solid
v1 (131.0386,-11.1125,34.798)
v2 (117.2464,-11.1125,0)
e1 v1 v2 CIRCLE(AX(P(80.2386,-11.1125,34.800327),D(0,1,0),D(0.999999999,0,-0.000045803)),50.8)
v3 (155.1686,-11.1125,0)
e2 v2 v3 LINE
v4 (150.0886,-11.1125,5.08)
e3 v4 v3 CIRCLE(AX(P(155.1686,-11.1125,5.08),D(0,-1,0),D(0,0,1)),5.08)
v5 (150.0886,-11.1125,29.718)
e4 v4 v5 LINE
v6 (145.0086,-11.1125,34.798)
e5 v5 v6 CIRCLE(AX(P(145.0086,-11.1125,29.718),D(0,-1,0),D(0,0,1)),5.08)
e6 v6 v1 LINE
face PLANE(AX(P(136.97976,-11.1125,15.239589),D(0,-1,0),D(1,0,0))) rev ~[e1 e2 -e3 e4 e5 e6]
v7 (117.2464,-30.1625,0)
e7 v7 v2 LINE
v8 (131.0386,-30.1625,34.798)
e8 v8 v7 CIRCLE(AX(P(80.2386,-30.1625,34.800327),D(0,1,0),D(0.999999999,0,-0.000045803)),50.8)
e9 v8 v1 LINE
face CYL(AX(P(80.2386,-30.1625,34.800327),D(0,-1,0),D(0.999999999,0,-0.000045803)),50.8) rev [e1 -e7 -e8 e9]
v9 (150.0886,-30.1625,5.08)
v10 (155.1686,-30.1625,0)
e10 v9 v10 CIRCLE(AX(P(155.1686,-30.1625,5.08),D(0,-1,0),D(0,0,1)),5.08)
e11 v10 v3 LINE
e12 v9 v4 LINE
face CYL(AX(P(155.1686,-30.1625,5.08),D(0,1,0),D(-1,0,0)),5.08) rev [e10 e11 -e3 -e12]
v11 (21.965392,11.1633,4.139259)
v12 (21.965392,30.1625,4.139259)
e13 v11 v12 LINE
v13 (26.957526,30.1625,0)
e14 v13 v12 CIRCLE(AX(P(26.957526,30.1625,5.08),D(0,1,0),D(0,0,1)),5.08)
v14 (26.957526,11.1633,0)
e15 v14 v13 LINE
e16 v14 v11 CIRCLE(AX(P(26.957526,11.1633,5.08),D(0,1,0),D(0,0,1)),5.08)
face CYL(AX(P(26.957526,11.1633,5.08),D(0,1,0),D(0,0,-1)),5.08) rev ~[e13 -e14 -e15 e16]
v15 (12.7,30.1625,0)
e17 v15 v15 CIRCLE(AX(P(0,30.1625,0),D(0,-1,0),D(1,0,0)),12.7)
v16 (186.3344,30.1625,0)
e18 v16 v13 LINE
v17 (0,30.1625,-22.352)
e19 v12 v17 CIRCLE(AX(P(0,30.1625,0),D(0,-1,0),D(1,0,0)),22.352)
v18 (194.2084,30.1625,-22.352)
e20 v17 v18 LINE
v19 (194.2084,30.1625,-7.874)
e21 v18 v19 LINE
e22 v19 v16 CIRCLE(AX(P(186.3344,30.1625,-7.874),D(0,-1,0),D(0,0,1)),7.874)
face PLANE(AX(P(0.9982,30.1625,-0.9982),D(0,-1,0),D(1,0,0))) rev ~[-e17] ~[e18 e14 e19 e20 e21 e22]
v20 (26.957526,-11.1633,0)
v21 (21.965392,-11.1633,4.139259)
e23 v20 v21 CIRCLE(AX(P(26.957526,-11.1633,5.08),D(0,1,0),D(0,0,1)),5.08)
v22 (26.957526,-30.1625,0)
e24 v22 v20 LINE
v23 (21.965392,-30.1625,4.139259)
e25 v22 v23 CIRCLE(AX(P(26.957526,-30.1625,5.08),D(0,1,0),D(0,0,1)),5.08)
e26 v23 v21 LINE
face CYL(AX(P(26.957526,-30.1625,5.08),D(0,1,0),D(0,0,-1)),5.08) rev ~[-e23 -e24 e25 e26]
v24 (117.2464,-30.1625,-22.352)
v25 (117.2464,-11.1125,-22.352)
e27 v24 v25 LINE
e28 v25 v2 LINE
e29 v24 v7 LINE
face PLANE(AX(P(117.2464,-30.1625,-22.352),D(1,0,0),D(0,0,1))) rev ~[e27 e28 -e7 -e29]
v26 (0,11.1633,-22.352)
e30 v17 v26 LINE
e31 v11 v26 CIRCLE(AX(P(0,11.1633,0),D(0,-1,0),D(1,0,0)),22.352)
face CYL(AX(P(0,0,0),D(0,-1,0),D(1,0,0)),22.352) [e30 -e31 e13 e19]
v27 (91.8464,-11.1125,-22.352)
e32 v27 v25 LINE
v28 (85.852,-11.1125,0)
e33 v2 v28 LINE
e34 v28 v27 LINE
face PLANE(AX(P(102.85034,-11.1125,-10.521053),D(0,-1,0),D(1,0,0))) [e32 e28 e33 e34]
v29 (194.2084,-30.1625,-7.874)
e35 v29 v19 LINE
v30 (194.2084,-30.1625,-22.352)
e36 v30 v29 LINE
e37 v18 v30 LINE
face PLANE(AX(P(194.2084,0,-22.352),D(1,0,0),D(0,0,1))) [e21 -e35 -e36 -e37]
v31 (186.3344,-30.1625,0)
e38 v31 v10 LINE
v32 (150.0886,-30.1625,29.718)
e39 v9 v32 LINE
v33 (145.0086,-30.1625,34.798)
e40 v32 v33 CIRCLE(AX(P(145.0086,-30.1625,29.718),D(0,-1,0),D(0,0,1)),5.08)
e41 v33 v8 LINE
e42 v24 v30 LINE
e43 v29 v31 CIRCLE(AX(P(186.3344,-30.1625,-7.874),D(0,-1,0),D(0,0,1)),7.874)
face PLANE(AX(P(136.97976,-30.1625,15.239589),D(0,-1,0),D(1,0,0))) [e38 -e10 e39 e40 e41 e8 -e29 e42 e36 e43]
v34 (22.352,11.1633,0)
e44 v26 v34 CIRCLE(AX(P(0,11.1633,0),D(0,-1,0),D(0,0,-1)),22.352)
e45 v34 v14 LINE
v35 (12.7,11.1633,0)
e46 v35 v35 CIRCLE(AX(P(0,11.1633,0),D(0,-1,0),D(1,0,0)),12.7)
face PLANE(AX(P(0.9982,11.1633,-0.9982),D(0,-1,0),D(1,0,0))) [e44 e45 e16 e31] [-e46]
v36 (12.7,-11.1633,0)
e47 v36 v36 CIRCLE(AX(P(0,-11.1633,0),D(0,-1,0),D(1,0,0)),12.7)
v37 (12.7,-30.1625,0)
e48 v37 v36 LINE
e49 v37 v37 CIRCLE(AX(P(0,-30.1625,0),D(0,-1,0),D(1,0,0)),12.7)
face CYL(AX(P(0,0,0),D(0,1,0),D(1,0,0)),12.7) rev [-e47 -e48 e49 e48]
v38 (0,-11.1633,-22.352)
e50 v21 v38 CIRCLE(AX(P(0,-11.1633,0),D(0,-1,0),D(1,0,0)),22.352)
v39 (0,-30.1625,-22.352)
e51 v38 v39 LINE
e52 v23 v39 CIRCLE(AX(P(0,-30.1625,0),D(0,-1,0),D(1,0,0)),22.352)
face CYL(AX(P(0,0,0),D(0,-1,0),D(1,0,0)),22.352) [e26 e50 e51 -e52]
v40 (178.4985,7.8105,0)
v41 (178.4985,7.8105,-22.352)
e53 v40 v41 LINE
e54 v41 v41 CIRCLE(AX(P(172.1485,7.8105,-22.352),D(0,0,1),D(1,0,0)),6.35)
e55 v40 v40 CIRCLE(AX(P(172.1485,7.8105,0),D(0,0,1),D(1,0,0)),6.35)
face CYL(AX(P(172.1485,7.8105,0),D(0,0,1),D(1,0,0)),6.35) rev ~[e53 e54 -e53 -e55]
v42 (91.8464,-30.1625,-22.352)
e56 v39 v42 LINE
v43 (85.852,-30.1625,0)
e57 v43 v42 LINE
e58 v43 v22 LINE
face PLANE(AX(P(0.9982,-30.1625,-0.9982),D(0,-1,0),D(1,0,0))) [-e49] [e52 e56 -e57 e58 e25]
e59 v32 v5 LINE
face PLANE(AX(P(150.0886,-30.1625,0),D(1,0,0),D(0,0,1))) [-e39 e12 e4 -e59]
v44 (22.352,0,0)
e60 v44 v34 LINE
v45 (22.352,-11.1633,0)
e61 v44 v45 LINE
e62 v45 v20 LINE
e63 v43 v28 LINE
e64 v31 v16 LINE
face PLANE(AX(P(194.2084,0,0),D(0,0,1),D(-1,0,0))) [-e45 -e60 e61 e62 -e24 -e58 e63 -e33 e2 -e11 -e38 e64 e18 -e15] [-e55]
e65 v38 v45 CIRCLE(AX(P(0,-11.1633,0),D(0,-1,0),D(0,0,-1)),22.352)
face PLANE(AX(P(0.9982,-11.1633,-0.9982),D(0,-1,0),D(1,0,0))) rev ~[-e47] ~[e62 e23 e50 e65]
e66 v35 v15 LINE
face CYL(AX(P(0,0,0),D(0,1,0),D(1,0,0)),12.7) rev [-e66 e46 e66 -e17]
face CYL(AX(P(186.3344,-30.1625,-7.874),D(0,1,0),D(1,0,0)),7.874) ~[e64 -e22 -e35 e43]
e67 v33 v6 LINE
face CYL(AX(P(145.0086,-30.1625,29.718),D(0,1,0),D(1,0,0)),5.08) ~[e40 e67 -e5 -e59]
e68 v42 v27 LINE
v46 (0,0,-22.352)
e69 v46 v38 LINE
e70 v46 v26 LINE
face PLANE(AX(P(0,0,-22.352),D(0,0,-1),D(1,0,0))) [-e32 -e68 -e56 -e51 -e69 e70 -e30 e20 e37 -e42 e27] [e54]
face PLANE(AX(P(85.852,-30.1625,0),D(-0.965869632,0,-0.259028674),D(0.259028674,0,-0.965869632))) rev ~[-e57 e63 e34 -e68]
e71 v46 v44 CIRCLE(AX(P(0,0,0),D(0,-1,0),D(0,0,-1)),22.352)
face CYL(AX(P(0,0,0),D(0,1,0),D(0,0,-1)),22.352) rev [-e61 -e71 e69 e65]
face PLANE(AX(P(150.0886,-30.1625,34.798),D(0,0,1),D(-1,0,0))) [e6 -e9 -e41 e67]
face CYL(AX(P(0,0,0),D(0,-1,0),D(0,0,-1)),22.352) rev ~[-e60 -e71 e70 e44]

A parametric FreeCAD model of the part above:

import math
import FreeCAD as App
import Part
import Sketcher

V = App.Vector
Q = App.Units.Quantity


def edges_at(feature, points):
    """Names of the edges that pass closest to the given points."""
    edges = feature.Shape.Edges
    near = lambda p: min(range(len(edges)), key=lambda i: edges[i].distToShape(Part.Vertex(*p))[0])
    return sorted({f"Edge{near(p) + 1}" for p in points})

doc = App.newDocument("Part")
body = doc.addObject("PartDesign::Body", "Body")

sketch1 = body.newObject("Sketcher::SketchObject", "Sketch")
sketch1.AttachmentSupport = (doc.getObject("XZ_Plane"), [""])
sketch1.MapMode = "FlatFace"
sketch1.addGeometry([
    Part.ArcOfCircle(Part.Circle(V(0, 0, 0), V(0, 0, 1), 22), math.radians(0), math.radians(270)),
    Part.LineSegment(V(0, -22, 0), V(194, -22, 0)),
    Part.LineSegment(V(194, -22, 0), V(194, 0, 0)),
    Part.LineSegment(V(194, 0, 0), V(22, 0, 0)),
    Part.Circle(V(0, 0, 0), V(0, 0, 1), 13),
], False)
sketch1.addConstraint([
    Sketcher.Constraint("Tangent", 0, 2, 1, 1),
    Sketcher.Constraint("Coincident", 1, 2, 2, 1),
    Sketcher.Constraint("Coincident", 2, 2, 3, 1),
    Sketcher.Constraint("Coincident", 3, 2, 0, 1),
    Sketcher.Constraint("Horizontal", 1),
    Sketcher.Constraint("Vertical", 2),
    Sketcher.Constraint("Horizontal", 3),
    Sketcher.Constraint("Coincident", 0, 3, -1, 1),
    Sketcher.Constraint("Coincident", 4, 3, -1, 1),
    Sketcher.Constraint("PointOnObject", 2, 2, -1),
    Sketcher.Constraint("Diameter", 4, Q("1 in")),
    Sketcher.Constraint("Radius", 0, Q("0.88 in")),
    Sketcher.Constraint("DistanceX", 1, 1, 1, 2, Q("7.646 in")),
])
pad1 = body.newObject("PartDesign::Pad", "Pad")
pad1.Profile = sketch1
pad1.Length = Q("2.375 in")
pad1.Midplane = True

sketch2 = body.newObject("Sketcher::SketchObject", "Sketch001")
sketch2.AttachmentSupport = (doc.getObject("XZ_Plane"), [""])
sketch2.MapMode = "FlatFace"
sketch2.addGeometry([
    Part.ArcOfCircle(Part.Circle(V(0, 0, 0), V(0, 0, 1), 22), math.radians(-90), math.radians(0)),
    Part.ArcOfCircle(Part.Circle(V(0, 0, 0), V(0, 0, 1), 22), math.radians(0), math.radians(270)),
    Part.Circle(V(0, 0, 0), V(0, 0, 1), 13),
], False)
sketch2.addConstraint([
    Sketcher.Constraint("Tangent", 0, 1, 1, 2),
    Sketcher.Constraint("Coincident", 1, 1, 0, 2),
    Sketcher.Constraint("Coincident", 0, 3, -1, 1),
    Sketcher.Constraint("Coincident", 2, 3, -1, 1),
    Sketcher.Constraint("PointOnObject", 0, 1, -2),
    Sketcher.Constraint("PointOnObject", 1, 1, -1),
    Sketcher.Constraint("Diameter", 2, Q("1 in")),
    Sketcher.Constraint("Radius", 0, Q("0.88 in")),
])
pocket1 = body.newObject("PartDesign::Pocket", "Pocket")
pocket1.Profile = sketch2
pocket1.Length = Q("0.879 in")
pocket1.Midplane = True

sketch3 = body.newObject("Sketcher::SketchObject", "Sketch002")
sketch3.AttachmentSupport = (doc.getObject("XZ_Plane"), [""])
sketch3.MapMode = "FlatFace"
sketch3.AttachmentOffset = App.Placement(V(0, 0, 1.1875 * 25.4), App.Rotation())
sketch3.addGeometry([
    Part.LineSegment(V(117, 0, 0), V(86, 0, 0)),
    Part.LineSegment(V(86, 0, 0), V(92, -22, 0)),
    Part.LineSegment(V(92, -22, 0), V(117, -22, 0)),
    Part.LineSegment(V(117, -22, 0), V(117, 0, 0)),
], False)
sketch3.addConstraint([
    Sketcher.Constraint("Coincident", 0, 2, 1, 1),
    Sketcher.Constraint("Coincident", 1, 2, 2, 1),
    Sketcher.Constraint("Coincident", 2, 2, 3, 1),
    Sketcher.Constraint("Coincident", 3, 2, 0, 1),
    Sketcher.Constraint("Horizontal", 0),
    Sketcher.Constraint("Horizontal", 2),
    Sketcher.Constraint("Vertical", 3),
    Sketcher.Constraint("PointOnObject", 0, 2, -1),
    Sketcher.Constraint("DistanceX", 2, 1, 2, 2, Q("1 in")),
    Sketcher.Constraint("DistanceY", 3, 1, 3, 2, Q("0.88 in")),
    Sketcher.Constraint("DistanceX", 0, 2, 0, 1, Q("1.236 in")),
    Sketcher.Constraint("DistanceX", -1, 1, 0, 2, Q("3.38 in")),
])
pocket2 = body.newObject("PartDesign::Pocket", "Pocket001")
pocket2.Profile = sketch3
pocket2.Length = Q("0.75 in")

sketch4 = body.newObject("Sketcher::SketchObject", "Sketch003")
sketch4.AttachmentSupport = (doc.getObject("XZ_Plane"), [""])
sketch4.MapMode = "FlatFace"
sketch4.AttachmentOffset = App.Placement(V(0, 0, 1.1875 * 25.4), App.Rotation())
sketch4.addGeometry([
    Part.ArcOfCircle(Part.Circle(V(80, 35, 0), V(0, 0, 1), 51), math.radians(-43), math.radians(0)),
    Part.LineSegment(V(117, 0, 0), V(150, 0, 0)),
    Part.LineSegment(V(150, 0, 0), V(150, 35, 0)),
    Part.LineSegment(V(150, 35, 0), V(131, 35, 0)),
], False)
sketch4.addConstraint([
    Sketcher.Constraint("Coincident", 0, 1, 1, 1),
    Sketcher.Constraint("Coincident", 1, 2, 2, 1),
    Sketcher.Constraint("Coincident", 2, 2, 3, 1),
    Sketcher.Constraint("Coincident", 3, 2, 0, 2),
    Sketcher.Constraint("Horizontal", 1),
    Sketcher.Constraint("Vertical", 2),
    Sketcher.Constraint("Horizontal", 3),
    Sketcher.Constraint("PointOnObject", 0, 1, -1),
    Sketcher.Constraint("Radius", 0, Q("2 in")),
    Sketcher.Constraint("DistanceX", 3, 2, 3, 1, Q("0.75 in")),
    Sketcher.Constraint("DistanceY", 2, 1, 2, 2, Q("1.37 in")),
    Sketcher.Constraint("DistanceX", 1, 1, 1, 2, Q("1.293 in")),
    Sketcher.Constraint("DistanceX", -1, 1, 0, 3, Q("3.159 in")),
])
pad2 = body.newObject("PartDesign::Pad", "Pad001")
pad2.Profile = sketch4
pad2.Length = Q("0.75 in")
pad2.Reversed = True

sketch5 = body.newObject("Sketcher::SketchObject", "Sketch004")
sketch5.AttachmentSupport = (doc.getObject("XY_Plane"), [""])
sketch5.MapMode = "FlatFace"
sketch5.addGeometry(Part.Circle(V(172, 8, 0), V(0, 0, 1), 6), False)
sketch5.addConstraint([
    Sketcher.Constraint("Diameter", 0, Q("0.5 in")),
    Sketcher.Constraint("DistanceX", -1, 1, 0, 3, Q("6.7775 in")),
    Sketcher.Constraint("DistanceY", -1, 1, 0, 3, Q("0.3075 in")),
])
pocket3 = body.newObject("PartDesign::Pocket", "Pocket002")
pocket3.Profile = sketch5
pocket3.Type = "ThroughAll"
doc.recompute()

fillet = body.newObject("PartDesign::Fillet", "Fillet")
fillet.Base = (pocket3, edges_at(pocket3, [(194.208, 0, 0)]))
fillet.Radius = Q("0.31 in")
doc.recompute()

fillet2 = body.newObject("PartDesign::Fillet", "Fillet001")
fillet2.Base = (fillet, edges_at(fillet, [(150.089, -20.637, 34.798)]))
fillet2.Radius = Q("0.2 in")
doc.recompute()

fillet3 = body.newObject("PartDesign::Fillet", "Fillet002")
fillet3.Base = (fillet2, edges_at(fillet2, [(22.352, -20.663, 0), (22.352, 20.663, 0), (150.089, -20.637, 0)]))
fillet3.Radius = Q("0.2 in")

doc.recompute()
